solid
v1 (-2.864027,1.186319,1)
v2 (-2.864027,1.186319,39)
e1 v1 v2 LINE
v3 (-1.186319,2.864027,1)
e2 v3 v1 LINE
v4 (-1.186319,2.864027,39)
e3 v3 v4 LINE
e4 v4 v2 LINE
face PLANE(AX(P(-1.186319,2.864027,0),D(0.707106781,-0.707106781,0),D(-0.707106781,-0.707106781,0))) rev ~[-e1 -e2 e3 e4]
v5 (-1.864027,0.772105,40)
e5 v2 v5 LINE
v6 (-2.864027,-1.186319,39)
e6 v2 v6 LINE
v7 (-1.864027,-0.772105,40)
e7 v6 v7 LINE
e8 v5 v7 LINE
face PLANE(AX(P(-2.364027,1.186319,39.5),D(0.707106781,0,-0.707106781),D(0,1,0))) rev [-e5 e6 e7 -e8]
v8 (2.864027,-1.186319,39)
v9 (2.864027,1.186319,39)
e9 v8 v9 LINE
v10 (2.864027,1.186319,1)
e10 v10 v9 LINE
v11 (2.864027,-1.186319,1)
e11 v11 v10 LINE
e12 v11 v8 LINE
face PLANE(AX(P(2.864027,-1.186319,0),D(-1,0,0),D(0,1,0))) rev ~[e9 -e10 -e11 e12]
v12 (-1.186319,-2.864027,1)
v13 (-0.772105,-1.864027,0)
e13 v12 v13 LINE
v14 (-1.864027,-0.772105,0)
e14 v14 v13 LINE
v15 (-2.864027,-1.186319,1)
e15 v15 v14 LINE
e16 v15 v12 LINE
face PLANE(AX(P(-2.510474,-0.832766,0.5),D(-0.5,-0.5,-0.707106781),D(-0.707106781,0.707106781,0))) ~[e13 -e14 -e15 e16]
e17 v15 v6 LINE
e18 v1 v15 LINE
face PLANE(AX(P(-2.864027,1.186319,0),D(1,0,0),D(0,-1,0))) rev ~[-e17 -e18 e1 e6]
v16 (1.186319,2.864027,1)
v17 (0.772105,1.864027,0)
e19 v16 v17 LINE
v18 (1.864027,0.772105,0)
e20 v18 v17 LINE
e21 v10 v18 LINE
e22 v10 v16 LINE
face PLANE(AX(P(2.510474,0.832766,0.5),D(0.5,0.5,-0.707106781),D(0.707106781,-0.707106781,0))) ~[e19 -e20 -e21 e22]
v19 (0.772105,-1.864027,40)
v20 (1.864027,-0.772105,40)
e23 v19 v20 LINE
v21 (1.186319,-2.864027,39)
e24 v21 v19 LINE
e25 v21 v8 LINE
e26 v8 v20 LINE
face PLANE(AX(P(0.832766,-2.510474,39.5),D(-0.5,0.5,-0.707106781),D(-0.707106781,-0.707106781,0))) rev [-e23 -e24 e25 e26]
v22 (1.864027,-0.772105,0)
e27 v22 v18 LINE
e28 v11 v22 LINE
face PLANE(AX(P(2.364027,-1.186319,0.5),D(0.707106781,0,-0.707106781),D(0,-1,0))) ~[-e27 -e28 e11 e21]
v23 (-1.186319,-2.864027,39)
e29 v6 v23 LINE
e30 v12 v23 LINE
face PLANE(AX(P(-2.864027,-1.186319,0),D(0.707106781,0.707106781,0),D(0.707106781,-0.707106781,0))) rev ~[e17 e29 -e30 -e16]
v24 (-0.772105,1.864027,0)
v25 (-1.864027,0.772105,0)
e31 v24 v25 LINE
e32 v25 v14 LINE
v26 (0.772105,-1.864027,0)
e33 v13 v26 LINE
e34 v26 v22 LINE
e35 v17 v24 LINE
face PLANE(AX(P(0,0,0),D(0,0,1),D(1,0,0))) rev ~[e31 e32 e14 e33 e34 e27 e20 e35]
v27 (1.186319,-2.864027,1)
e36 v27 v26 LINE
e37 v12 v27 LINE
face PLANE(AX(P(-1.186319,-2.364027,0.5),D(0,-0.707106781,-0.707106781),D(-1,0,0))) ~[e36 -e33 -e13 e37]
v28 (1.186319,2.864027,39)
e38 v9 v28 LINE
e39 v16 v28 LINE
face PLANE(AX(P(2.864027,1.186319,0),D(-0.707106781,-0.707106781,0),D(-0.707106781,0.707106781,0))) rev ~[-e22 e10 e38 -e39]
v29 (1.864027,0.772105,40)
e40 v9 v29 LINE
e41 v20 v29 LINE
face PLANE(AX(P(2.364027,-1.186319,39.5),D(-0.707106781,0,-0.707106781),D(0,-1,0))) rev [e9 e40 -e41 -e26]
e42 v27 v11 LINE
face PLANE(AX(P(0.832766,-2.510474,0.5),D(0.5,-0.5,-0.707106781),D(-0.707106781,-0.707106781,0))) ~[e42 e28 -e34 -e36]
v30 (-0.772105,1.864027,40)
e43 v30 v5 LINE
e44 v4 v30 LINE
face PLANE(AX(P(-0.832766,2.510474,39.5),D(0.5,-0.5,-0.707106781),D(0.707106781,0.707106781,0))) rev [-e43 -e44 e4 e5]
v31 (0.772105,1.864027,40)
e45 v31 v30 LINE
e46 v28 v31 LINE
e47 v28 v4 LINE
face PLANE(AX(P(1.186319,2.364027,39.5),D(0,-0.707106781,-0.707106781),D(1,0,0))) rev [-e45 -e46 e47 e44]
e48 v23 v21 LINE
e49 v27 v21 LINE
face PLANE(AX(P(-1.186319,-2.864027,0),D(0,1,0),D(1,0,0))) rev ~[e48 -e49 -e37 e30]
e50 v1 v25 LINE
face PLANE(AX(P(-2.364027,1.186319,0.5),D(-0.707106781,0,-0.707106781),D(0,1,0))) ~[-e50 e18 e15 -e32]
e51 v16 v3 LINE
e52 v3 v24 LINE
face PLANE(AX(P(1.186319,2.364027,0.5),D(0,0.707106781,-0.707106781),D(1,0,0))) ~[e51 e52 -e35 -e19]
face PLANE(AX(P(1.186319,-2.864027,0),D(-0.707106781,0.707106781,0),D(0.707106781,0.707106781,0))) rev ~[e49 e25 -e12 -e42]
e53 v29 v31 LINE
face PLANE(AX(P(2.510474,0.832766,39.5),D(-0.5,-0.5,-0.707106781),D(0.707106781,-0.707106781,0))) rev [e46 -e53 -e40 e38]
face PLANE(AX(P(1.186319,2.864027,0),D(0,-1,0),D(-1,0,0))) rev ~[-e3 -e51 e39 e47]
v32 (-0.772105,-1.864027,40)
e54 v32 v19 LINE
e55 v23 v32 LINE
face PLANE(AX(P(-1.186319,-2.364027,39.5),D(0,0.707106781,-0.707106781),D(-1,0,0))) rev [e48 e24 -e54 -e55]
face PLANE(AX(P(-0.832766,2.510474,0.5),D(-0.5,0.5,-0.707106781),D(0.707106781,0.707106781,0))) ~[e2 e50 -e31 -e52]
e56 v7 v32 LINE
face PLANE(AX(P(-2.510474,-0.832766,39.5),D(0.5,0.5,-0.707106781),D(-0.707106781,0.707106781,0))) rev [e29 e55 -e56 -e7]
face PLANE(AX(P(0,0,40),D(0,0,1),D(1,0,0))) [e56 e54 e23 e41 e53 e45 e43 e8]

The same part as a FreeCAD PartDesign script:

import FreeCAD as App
import Part
import Sketcher
from FreeCAD import Vector


def edges_at(feature, points):
    """Names of the edges that pass closest to the given points."""
    edges = feature.Shape.Edges
    near = lambda p: min(range(len(edges)), key=lambda i: edges[i].distToShape(Part.Vertex(*p))[0])
    return sorted({f"Edge{near(p) + 1}" for p in points})


def add_polygon(sketch, points):
    """Adds a closed chain of lines whose ends are joined by coincident constraints."""
    first, n = sketch.GeometryCount, len(points)
    for a, b in zip(points, points[1:] + points[:1]):
        sketch.addGeometry(Part.LineSegment(App.Vector(*a, 0), App.Vector(*b, 0)), False)
    for i in range(n):
        sketch.addConstraint(Sketcher.Constraint("Coincident", first + i, 2, first + (i + 1) % n, 1))

doc = App.newDocument("Part")
params = doc.addObject("Spreadsheet::Sheet", "Params")
for row, (alias, value) in enumerate([
    ("pad1_length", "40 mm"),
    ("chamfer_size", "1 mm"),
], start=1):
    params.set(f"A{row}", alias)
    params.set(f"B{row}", "=" + value)
    params.setAlias(f"B{row}", alias)

body = doc.addObject("PartDesign::Body", "Body")

sketch1 = doc.addObject("Sketcher::SketchObject", "Sketch")
body.addObject(sketch1)
sketch1.AttachmentSupport = (doc.XY_Plane, [""])
sketch1.MapMode = "FlatFace"
add_polygon(sketch1, [(2.9, -1.2), (2.9, 1.2), (1.2, 2.9), (-1.2, 2.9), (-2.9, 1.2), (-2.9, -1.2), (-1.2, -2.9), (1.2, -2.9)])
sketch1.addConstraint([
    Sketcher.Constraint("Vertical", 0),
    Sketcher.Constraint("Horizontal", 2),
    Sketcher.Constraint("Vertical", 4),
    Sketcher.Constraint("Horizontal", 6),
    Sketcher.Constraint("Symmetric", 0, 2, 4, 2, -1, 1),
    Sketcher.Constraint("Symmetric", 1, 2, 5, 2, -1, 1),
    Sketcher.Constraint("Perpendicular", 1, 3),
    Sketcher.Constraint("Perpendicular", 5, 7),
    Sketcher.Constraint("Horizontal", 0, 2, 3, 2),
    Sketcher.Constraint("Horizontal", 4, 2, 7, 2),
    Sketcher.Constraint("Vertical", 2, 2, 5, 2),
    Sketcher.Constraint("Equal", 6, 0),
    Sketcher.Constraint("DistanceX", 2, 2, 2, 1, 2.372638),
    Sketcher.Constraint("DistanceX", 1, 2, 0, 2, 1.677708),
])
pad1 = doc.addObject("PartDesign::Pad", "Pad")
body.addObject(pad1)
pad1.Profile = sketch1
pad1.setExpression("Length", "Params.pad1_length")
doc.recompute()

chamfer = doc.addObject("PartDesign::Chamfer", "Chamfer")
body.addObject(chamfer)
chamfer.Base = (pad1, edges_at(pad1, [
    (2.025, -2.025, 40),
    (2.864, 0, 40),
    (2.025, 2.025, 40),
    (0, 2.864, 40),
    (-2.025, 2.025, 40),
    (-2.864, 0, 40),
    (-2.025, -2.025, 40),
    (0, -2.864, 40),
    (2.025, -2.025, 0),
    (2.864, 0, 0),
    (2.025, 2.025, 0),
    (0, 2.864, 0),
    (-2.025, 2.025, 0),
    (-2.864, 0, 0),
    (-2.025, -2.025, 0),
    (0, -2.864, 0),
]))
chamfer.setExpression("Size", "Params.chamfer_size")

doc.recompute()
